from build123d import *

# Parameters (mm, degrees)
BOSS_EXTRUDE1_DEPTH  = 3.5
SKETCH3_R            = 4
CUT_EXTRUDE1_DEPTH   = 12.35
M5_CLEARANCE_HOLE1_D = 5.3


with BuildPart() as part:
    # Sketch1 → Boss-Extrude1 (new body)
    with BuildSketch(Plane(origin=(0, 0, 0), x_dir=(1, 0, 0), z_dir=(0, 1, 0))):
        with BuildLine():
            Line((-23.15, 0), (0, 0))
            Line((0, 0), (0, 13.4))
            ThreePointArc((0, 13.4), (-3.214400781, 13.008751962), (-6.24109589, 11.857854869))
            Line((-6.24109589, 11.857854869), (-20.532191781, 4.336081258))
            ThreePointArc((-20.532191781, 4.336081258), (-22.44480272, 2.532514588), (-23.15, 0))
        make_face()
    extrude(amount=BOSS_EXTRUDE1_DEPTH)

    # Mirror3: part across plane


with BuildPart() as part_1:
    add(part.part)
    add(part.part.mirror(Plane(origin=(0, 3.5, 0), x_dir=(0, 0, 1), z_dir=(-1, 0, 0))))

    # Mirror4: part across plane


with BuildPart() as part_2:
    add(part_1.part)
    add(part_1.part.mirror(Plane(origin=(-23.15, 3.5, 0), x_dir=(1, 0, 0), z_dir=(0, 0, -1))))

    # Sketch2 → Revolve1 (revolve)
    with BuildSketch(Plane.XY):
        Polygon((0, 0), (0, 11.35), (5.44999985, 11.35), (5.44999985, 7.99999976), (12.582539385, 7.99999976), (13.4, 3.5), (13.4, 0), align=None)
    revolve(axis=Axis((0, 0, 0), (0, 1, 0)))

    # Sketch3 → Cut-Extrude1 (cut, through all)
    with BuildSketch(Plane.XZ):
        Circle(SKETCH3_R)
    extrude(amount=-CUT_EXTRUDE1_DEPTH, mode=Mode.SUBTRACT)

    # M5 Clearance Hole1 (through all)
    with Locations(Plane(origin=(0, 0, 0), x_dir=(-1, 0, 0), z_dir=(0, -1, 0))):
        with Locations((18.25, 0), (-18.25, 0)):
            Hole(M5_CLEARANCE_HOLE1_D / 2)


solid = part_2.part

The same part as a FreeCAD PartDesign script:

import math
import FreeCAD as App
import Part
import Sketcher


def add_polygon(sketch, points):
    """Adds a closed chain of lines whose ends are joined by coincident constraints."""
    first, n = sketch.GeometryCount, len(points)
    for a, b in zip(points, points[1:] + points[:1]):
        sketch.addGeometry(Part.LineSegment(App.Vector(*a, 0), App.Vector(*b, 0)), False)
    for i in range(n):
        sketch.addConstraint(Sketcher.Constraint("Coincident", first + i, 2, first + (i + 1) % n, 1))

doc = App.newDocument("Part")
body = doc.addObject("PartDesign::Body", "Body")

# Sketch on XZ plane
sketch1 = body.newObject("Sketcher::SketchObject", "Sketch")
sketch1.AttachmentSupport = (doc.getObject("XZ_Plane"), [""])
sketch1.MapMode = "FlatFace"
sketch1.addGeometry([
    Part.LineSegment(App.Vector(-23.15, 0, 0), App.Vector(0, 0, 0)),  # 0
    Part.LineSegment(App.Vector(0, 0, 0), App.Vector(0, -13.4, 0)),  # 1
    Part.ArcOfCircle(Part.Circle(App.Vector(0, 0, 0), App.Vector(0, 0, 1), 13.4), math.radians(-117.758993), math.radians(-90)),  # 2
    Part.LineSegment(App.Vector(-6.241096, -11.857855, 0), App.Vector(-20.532192, -4.336081, 0)),  # 3
    Part.ArcOfCircle(Part.Circle(App.Vector(-18.25, 0, 0), App.Vector(0, 0, 1), 4.9), math.radians(-180), math.radians(-117.758993)),  # 4
], False)
sketch1.addConstraint([
    Sketcher.Constraint("Coincident", 0, 2, 1, 1),
    Sketcher.Constraint("Coincident", 1, 2, 2, 2),
    Sketcher.Constraint("Tangent", 2, 1, 3, 1),
    Sketcher.Constraint("Tangent", 3, 2, 4, 2),
    Sketcher.Constraint("Coincident", 4, 1, 0, 1),
    Sketcher.Constraint("Horizontal", 0),
    Sketcher.Constraint("Vertical", 1),
    Sketcher.Constraint("Coincident", 2, 3, -1, 1),
    Sketcher.Constraint("Coincident", 0, 2, -1, 1),
    Sketcher.Constraint("PointOnObject", 4, 3, -1),
    Sketcher.Constraint("Radius", 2, 13.4),
    Sketcher.Constraint("Radius", 4, 4.9),
    Sketcher.Constraint("DistanceX", 0, 1, 0, 2, 23.15),
])
pad1 = body.newObject("PartDesign::Pad", "Pad")
pad1.Profile = sketch1
pad1.Length = 3.5
pad1.Reversed = True
body2 = doc.addObject("PartDesign::Body", "Body001")
doc.recompute()

body2.BaseFeature = body
doc.recompute()

mirroring = doc.addObject("Part::Mirroring", "Mirroring")
mirroring.Source = body
mirroring.Base = App.Vector(0, 3.5, 0)
mirroring.Normal = App.Vector(-1, 0, 0)
body3 = doc.addObject("PartDesign::Body", "Body002")
body3.BaseFeature = mirroring
boolean = body2.newObject("PartDesign::Boolean", "Boolean")
boolean.Type = "Fuse"
boolean.addObjects([body3])
doc.recompute()
body4 = doc.addObject("PartDesign::Body", "Body003")
doc.recompute()

body4.BaseFeature = body2
doc.recompute()

mirroring2 = doc.addObject("Part::Mirroring", "Mirroring001")
mirroring2.Source = body2
mirroring2.Base = App.Vector(-23.15, 3.5, 0)
mirroring2.Normal = App.Vector(0, 0, -1)
body5 = doc.addObject("PartDesign::Body", "Body004")
body5.BaseFeature = mirroring2
boolean2 = body4.newObject("PartDesign::Boolean", "Boolean001")
boolean2.Type = "Fuse"
boolean2.addObjects([body5])
doc.recompute()

# Sketch on XY plane
sketch2 = body4.newObject("Sketcher::SketchObject", "Sketch001")
sketch2.AttachmentSupport = (doc.getObject("XY_Plane003"), [""])
sketch2.MapMode = "FlatFace"
add_polygon(sketch2, [(0, 11.35), (0, 0), (13.4, 0), (13.4, 3.5), (12.582539, 8), (5.45, 8), (5.45, 11.35)])  # lines 0-6
sketch2.addConstraint([
    Sketcher.Constraint("Vertical", 0),
    Sketcher.Constraint("Horizontal", 1),
    Sketcher.Constraint("Vertical", 2),
    Sketcher.Constraint("Horizontal", 4),
    Sketcher.Constraint("Vertical", 5),
    Sketcher.Constraint("Horizontal", 6),
    Sketcher.Constraint("Coincident", 0, 2, -1, 1),
    Sketcher.Constraint("DistanceX", 1, 1, 1, 2, 13.4),
    Sketcher.Constraint("DistanceY", 2, 1, 2, 2, 3.5),
    Sketcher.Constraint("DistanceY", -1, 1, 3, 2, 8.0),
    Sketcher.Constraint("DistanceX", 6, 2, 6, 1, 5.45),
    Sketcher.Constraint("DistanceY", 0, 2, 0, 1, 11.35),
    Sketcher.Constraint("DistanceX", 4, 2, 4, 1, 7.13254),
])
revolution = body4.newObject("PartDesign::Revolution", "Revolution")
revolution.Profile = sketch2
revolution.ReferenceAxis = (sketch2, ["V_Axis"])
revolution.Angle = 360

# Sketch on XZ plane
sketch3 = body4.newObject("Sketcher::SketchObject", "Sketch002")
sketch3.AttachmentSupport = (doc.getObject("XZ_Plane003"), [""])
sketch3.MapMode = "FlatFace"
sketch3.addGeometry(Part.Circle(App.Vector(0, 0, 0), App.Vector(0, 0, 1), 4), False)
sketch3.addConstraint([
    Sketcher.Constraint("Coincident", 0, 3, -1, 1),
    Sketcher.Constraint("Diameter", 0, 8.0),
])
pocket1 = body4.newObject("PartDesign::Pocket", "Pocket")
pocket1.Profile = sketch3
pocket1.Type = "ThroughAll"

# Sketch on XZ plane
sketch4 = body4.newObject("Sketcher::SketchObject", "Sketch003")
sketch4.AttachmentSupport = (doc.getObject("XZ_Plane003"), [""])
sketch4.MapMode = "FlatFace"
sketch4.addGeometry([
    Part.Circle(App.Vector(-18.25, 0, 0), App.Vector(0, 0, 1), 2.65),
    Part.Circle(App.Vector(18.25, 0, 0), App.Vector(0, 0, 1), 2.65),
], False)
sketch4.addConstraint([
    Sketcher.Constraint("Equal", 0, 1),
    Sketcher.Constraint("Symmetric", 0, 3, 1, 3, -1, 1),
    Sketcher.Constraint("PointOnObject", 0, 3, -1),
    Sketcher.Constraint("Diameter", 0, 5.3),
    Sketcher.Constraint("DistanceX", 0, 3, 1, 3, 36.5),
])
doc.recompute()
hole = body4.newObject("PartDesign::Hole", "Hole")
hole.Profile = sketch4
hole.ThreadType = "None"
hole.Diameter = 5.3
hole.DepthType = "ThroughAll"
mirroring.Visibility = False
mirroring2.Visibility = False

doc.recompute()
